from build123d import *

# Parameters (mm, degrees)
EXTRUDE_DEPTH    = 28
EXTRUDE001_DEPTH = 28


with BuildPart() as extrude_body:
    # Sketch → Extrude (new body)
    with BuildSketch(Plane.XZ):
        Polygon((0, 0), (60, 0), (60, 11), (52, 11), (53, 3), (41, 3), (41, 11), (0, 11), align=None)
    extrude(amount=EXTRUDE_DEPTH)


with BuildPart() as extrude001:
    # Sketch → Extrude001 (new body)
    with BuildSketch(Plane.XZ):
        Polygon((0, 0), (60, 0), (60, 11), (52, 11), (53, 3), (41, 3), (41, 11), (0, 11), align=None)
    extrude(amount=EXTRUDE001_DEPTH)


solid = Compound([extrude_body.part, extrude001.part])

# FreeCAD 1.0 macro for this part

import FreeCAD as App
import Part
import Sketcher
from FreeCAD import Vector
Q = App.Units.Quantity

doc = App.newDocument("Part")
params = doc.addObject("Spreadsheet::Sheet", "Params")
for row, (alias, value) in enumerate([
    ("sketch1_width", "60 mm"),
    ("sketch1_width2", "8 mm"),
    ("sketch1_width3", "12 mm"),
    ("sketch1_width4", "41 mm"),
    ("sketch1_height", "11 mm"),
    ("pad1_length", "28 mm"),
    ("sketch2_width", "60 mm"),
    ("sketch2_width2", "8 mm"),
    ("sketch2_width3", "12 mm"),
    ("sketch2_width4", "41 mm"),
    ("sketch2_height", "11 mm"),
    ("pad2_length", "28 mm"),
], start=1):
    params.set(f"A{row}", alias)
    params.set(f"B{row}", "=" + value)
    params.setAlias(f"B{row}", alias)

body = doc.addObject("PartDesign::Body", "Body")

# Sketch on XZ plane
sketch1 = body.newObject("Sketcher::SketchObject", "Sketch")
sketch1.AttachmentSupport = (doc.getObject("XZ_Plane"), [""])
sketch1.MapMode = "FlatFace"
sketch1.addGeometry([
    Part.LineSegment(Vector(0, 0, 0), Vector(60, 0, 0)),  # 0
    Part.LineSegment(Vector(60, 0, 0), Vector(60, 11, 0)),  # 1
    Part.LineSegment(Vector(60, 11, 0), Vector(52, 11, 0)),  # 2
    Part.LineSegment(Vector(52, 11, 0), Vector(53, 3, 0)),  # 3
    Part.LineSegment(Vector(53, 3, 0), Vector(41, 3, 0)),  # 4
    Part.LineSegment(Vector(41, 3, 0), Vector(41, 11, 0)),  # 5
    Part.LineSegment(Vector(41, 11, 0), Vector(0, 11, 0)),  # 6
    Part.LineSegment(Vector(0, 11, 0), Vector(0, 0, 0)),  # 7
], False)
sketch1.addConstraint([
    Sketcher.Constraint("Coincident", 0, 2, 1, 1),
    Sketcher.Constraint("Coincident", 1, 2, 2, 1),
    Sketcher.Constraint("Coincident", 2, 2, 3, 1),
    Sketcher.Constraint("Coincident", 3, 2, 4, 1),
    Sketcher.Constraint("Coincident", 4, 2, 5, 1),
    Sketcher.Constraint("Coincident", 5, 2, 6, 1),
    Sketcher.Constraint("Coincident", 6, 2, 7, 1),
    Sketcher.Constraint("Coincident", 7, 2, 0, 1),
    Sketcher.Constraint("Horizontal", 0),
    Sketcher.Constraint("Vertical", 1),
    Sketcher.Constraint("Horizontal", 2),
    Sketcher.Constraint("Horizontal", 4),
    Sketcher.Constraint("Vertical", 5),
    Sketcher.Constraint("Horizontal", 6),
    Sketcher.Constraint("Vertical", 7),
    Sketcher.Constraint("Coincident", 7, 2, -1, 1),
    Sketcher.Constraint("Horizontal", 2, 2, 5, 2),
    Sketcher.Constraint("Equal", 2, 5),
    Sketcher.Constraint("DistanceX", 0, 1, 0, 2, Q("60 mm")),
    Sketcher.Constraint("DistanceX", 2, 2, 2, 1, Q("8 mm")),
    Sketcher.Constraint("DistanceX", 4, 2, 4, 1, Q("12 mm")),
    Sketcher.Constraint("DistanceX", 6, 2, 6, 1, Q("41 mm")),
    Sketcher.Constraint("DistanceY", 1, 1, 1, 2, Q("11 mm")),
])
sketch1.setExpression("Constraints[18]", "Params.sketch1_width")
sketch1.setExpression("Constraints[19]", "Params.sketch1_width2")
sketch1.setExpression("Constraints[20]", "Params.sketch1_width3")
sketch1.setExpression("Constraints[21]", "Params.sketch1_width4")
sketch1.setExpression("Constraints[22]", "Params.sketch1_height")
pad1 = body.newObject("PartDesign::Pad", "Pad")
pad1.Profile = sketch1
pad1.setExpression("Length", "Params.pad1_length")
body2 = doc.addObject("PartDesign::Body", "Body001")

# Sketch on XZ plane
sketch2 = body2.newObject("Sketcher::SketchObject", "Sketch001")
sketch2.AttachmentSupport = (doc.getObject("XZ_Plane001"), [""])
sketch2.MapMode = "FlatFace"
sketch2.addGeometry([
    Part.LineSegment(Vector(0, 0, 0), Vector(60, 0, 0)),  # 0
    Part.LineSegment(Vector(60, 0, 0), Vector(60, 11, 0)),  # 1
    Part.LineSegment(Vector(60, 11, 0), Vector(52, 11, 0)),  # 2
    Part.LineSegment(Vector(52, 11, 0), Vector(53, 3, 0)),  # 3
    Part.LineSegment(Vector(53, 3, 0), Vector(41, 3, 0)),  # 4
    Part.LineSegment(Vector(41, 3, 0), Vector(41, 11, 0)),  # 5
    Part.LineSegment(Vector(41, 11, 0), Vector(0, 11, 0)),  # 6
    Part.LineSegment(Vector(0, 11, 0), Vector(0, 0, 0)),  # 7
], False)
sketch2.addConstraint([
    Sketcher.Constraint("Coincident", 0, 2, 1, 1),
    Sketcher.Constraint("Coincident", 1, 2, 2, 1),
    Sketcher.Constraint("Coincident", 2, 2, 3, 1),
    Sketcher.Constraint("Coincident", 3, 2, 4, 1),
    Sketcher.Constraint("Coincident", 4, 2, 5, 1),
    Sketcher.Constraint("Coincident", 5, 2, 6, 1),
    Sketcher.Constraint("Coincident", 6, 2, 7, 1),
    Sketcher.Constraint("Coincident", 7, 2, 0, 1),
    Sketcher.Constraint("Horizontal", 0),
    Sketcher.Constraint("Vertical", 1),
    Sketcher.Constraint("Horizontal", 2),
    Sketcher.Constraint("Horizontal", 4),
    Sketcher.Constraint("Vertical", 5),
    Sketcher.Constraint("Horizontal", 6),
    Sketcher.Constraint("Vertical", 7),
    Sketcher.Constraint("Coincident", 7, 2, -1, 1),
    Sketcher.Constraint("Horizontal", 2, 2, 5, 2),
    Sketcher.Constraint("Equal", 2, 5),
    Sketcher.Constraint("DistanceX", 0, 1, 0, 2, Q("60 mm")),
    Sketcher.Constraint("DistanceX", 2, 2, 2, 1, Q("8 mm")),
    Sketcher.Constraint("DistanceX", 4, 2, 4, 1, Q("12 mm")),
    Sketcher.Constraint("DistanceX", 6, 2, 6, 1, Q("41 mm")),
    Sketcher.Constraint("DistanceY", 1, 1, 1, 2, Q("11 mm")),
])
sketch2.setExpression("Constraints[18]", "Params.sketch2_width")
sketch2.setExpression("Constraints[19]", "Params.sketch2_width2")
sketch2.setExpression("Constraints[20]", "Params.sketch2_width3")
sketch2.setExpression("Constraints[21]", "Params.sketch2_width4")
sketch2.setExpression("Constraints[22]", "Params.sketch2_height")
pad2 = body2.newObject("PartDesign::Pad", "Pad001")
pad2.Profile = sketch2
pad2.setExpression("Length", "Params.pad2_length")

doc.recompute()
